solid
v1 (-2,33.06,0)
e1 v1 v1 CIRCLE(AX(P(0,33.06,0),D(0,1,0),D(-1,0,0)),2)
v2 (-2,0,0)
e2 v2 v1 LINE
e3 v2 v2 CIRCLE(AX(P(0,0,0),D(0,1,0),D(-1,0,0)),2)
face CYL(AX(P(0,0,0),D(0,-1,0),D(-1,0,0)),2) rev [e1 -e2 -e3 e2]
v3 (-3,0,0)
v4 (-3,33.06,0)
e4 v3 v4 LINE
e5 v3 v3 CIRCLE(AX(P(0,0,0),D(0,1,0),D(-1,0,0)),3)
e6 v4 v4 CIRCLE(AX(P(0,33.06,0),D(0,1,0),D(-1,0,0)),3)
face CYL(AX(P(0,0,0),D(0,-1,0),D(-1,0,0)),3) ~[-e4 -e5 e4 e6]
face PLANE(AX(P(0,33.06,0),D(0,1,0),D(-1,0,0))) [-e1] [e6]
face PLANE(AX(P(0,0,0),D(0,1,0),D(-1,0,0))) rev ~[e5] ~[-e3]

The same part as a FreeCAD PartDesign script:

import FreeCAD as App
import Part
import Sketcher

V = App.Vector

doc = App.newDocument("Part")
body = doc.addObject("PartDesign::Body", "Body")

# Sketch on XZ plane
sketch1 = body.newObject("Sketcher::SketchObject", "Sketch")
sketch1.AttachmentSupport = (doc.getObject("XZ_Plane"), [""])
sketch1.MapMode = "FlatFace"
sketch1.addGeometry(Part.Circle(V(0, 0, 0), V(0, 0, 1), 3), False)
sketch1.addGeometry(Part.Circle(V(0, 0, 0), V(0, 0, 1), 2), False)
sketch1.addConstraint(Sketcher.Constraint("Coincident", 0, 3, -1, 1))
sketch1.addConstraint(Sketcher.Constraint("Coincident", 1, 3, -1, 1))
sketch1.addConstraint(Sketcher.Constraint("Diameter", 0, 6.0))
sketch1.addConstraint(Sketcher.Constraint("Diameter", 1, 4.0))
pad1 = body.newObject("PartDesign::Pad", "Pad")
pad1.Profile = sketch1
pad1.Length = 33.06
pad1.Reversed = True

doc.recompute()
